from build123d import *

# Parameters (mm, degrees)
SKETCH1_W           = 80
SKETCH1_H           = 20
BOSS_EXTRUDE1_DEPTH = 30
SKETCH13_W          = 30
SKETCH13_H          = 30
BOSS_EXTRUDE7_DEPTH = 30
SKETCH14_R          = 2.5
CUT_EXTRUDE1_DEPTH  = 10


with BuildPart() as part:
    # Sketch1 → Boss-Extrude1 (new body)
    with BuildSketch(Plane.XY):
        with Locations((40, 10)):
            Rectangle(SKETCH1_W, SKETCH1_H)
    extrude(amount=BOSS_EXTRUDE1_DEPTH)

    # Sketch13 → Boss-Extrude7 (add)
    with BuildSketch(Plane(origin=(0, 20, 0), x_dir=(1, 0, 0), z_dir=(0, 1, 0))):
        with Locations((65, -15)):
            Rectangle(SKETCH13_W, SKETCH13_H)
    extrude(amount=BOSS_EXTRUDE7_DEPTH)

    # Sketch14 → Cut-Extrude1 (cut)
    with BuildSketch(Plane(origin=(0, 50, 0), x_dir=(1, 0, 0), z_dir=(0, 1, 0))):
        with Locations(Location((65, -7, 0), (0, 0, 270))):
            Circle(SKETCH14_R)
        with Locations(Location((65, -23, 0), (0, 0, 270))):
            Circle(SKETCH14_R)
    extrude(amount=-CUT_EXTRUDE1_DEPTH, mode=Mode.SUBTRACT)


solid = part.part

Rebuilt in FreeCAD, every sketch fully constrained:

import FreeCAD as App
import Part
import Sketcher
from FreeCAD import Vector


def add_polygon(sketch, points):
    """Adds a closed chain of lines whose ends are joined by coincident constraints."""
    first, n = sketch.GeometryCount, len(points)
    for a, b in zip(points, points[1:] + points[:1]):
        sketch.addGeometry(Part.LineSegment(App.Vector(*a, 0), App.Vector(*b, 0)), False)
    for i in range(n):
        sketch.addConstraint(Sketcher.Constraint("Coincident", first + i, 2, first + (i + 1) % n, 1))

doc = App.newDocument("Part")
body = doc.addObject("PartDesign::Body", "Body")

# Sketch on XY plane
sketch1 = body.newObject("Sketcher::SketchObject", "Sketch")
sketch1.AttachmentSupport = (doc.getObject("XY_Plane"), [""])
sketch1.MapMode = "FlatFace"
add_polygon(sketch1, [(0, 20), (0, 0), (80, 0), (80, 20)])  # lines 0-3
sketch1.addConstraint([
    Sketcher.Constraint("Vertical", 0),
    Sketcher.Constraint("Horizontal", 1),
    Sketcher.Constraint("Vertical", 2),
    Sketcher.Constraint("Horizontal", 3),
    Sketcher.Constraint("Coincident", 0, 2, -1, 1),
    Sketcher.Constraint("DistanceX", 1, 1, 1, 2, 80.0),
    Sketcher.Constraint("DistanceY", 0, 2, 0, 1, 20.0),
])
pad1 = body.newObject("PartDesign::Pad", "Pad")
pad1.Profile = sketch1
pad1.Length = 30

# Sketch on XZ plane
sketch2 = body.newObject("Sketcher::SketchObject", "Sketch001")
sketch2.AttachmentSupport = (doc.getObject("XZ_Plane"), [""])
sketch2.MapMode = "FlatFace"
sketch2.AttachmentOffset = App.Placement(Vector(0, 0, -20), App.Rotation())
add_polygon(sketch2, [(50, 0), (50, 30), (80, 30), (80, 0)])  # lines 0-3
sketch2.addConstraint([
    Sketcher.Constraint("Vertical", 0),
    Sketcher.Constraint("Horizontal", 1),
    Sketcher.Constraint("Vertical", 2),
    Sketcher.Constraint("Horizontal", 3),
    Sketcher.Constraint("PointOnObject", 2, 2, -1),
    Sketcher.Constraint("Equal", 3, 0),
    Sketcher.Constraint("DistanceX", 1, 1, 1, 2, 30.0),
    Sketcher.Constraint("DistanceX", -1, 1, 0, 2, 50.0),
])
pad2 = body.newObject("PartDesign::Pad", "Pad001")
pad2.Profile = sketch2
pad2.Length = 30
pad2.Reversed = True

# Sketch on XZ plane
sketch3 = body.newObject("Sketcher::SketchObject", "Sketch002")
sketch3.AttachmentSupport = (doc.getObject("XZ_Plane"), [""])
sketch3.MapMode = "FlatFace"
sketch3.AttachmentOffset = App.Placement(Vector(0, 0, -50), App.Rotation())
sketch3.addGeometry([
    Part.Circle(Vector(65, 7, 0), Vector(0, 0, 1), 2.5),
    Part.Circle(Vector(65, 23, 0), Vector(0, 0, 1), 2.5),
], False)
sketch3.addConstraint([
    Sketcher.Constraint("Equal", 0, 1),
    Sketcher.Constraint("Vertical", 0, 3, 1, 3),
    Sketcher.Constraint("Diameter", 0, 5.0),
    Sketcher.Constraint("DistanceX", -1, 1, 0, 3, 65.0),
    Sketcher.Constraint("DistanceY", -1, 1, 0, 3, 7.0),
    Sketcher.Constraint("DistanceY", -1, 1, 1, 3, 23.0),
])
pocket1 = body.newObject("PartDesign::Pocket", "Pocket")
pocket1.Profile = sketch3
pocket1.Length = 10
pocket1.Reversed = True

doc.recompute()
